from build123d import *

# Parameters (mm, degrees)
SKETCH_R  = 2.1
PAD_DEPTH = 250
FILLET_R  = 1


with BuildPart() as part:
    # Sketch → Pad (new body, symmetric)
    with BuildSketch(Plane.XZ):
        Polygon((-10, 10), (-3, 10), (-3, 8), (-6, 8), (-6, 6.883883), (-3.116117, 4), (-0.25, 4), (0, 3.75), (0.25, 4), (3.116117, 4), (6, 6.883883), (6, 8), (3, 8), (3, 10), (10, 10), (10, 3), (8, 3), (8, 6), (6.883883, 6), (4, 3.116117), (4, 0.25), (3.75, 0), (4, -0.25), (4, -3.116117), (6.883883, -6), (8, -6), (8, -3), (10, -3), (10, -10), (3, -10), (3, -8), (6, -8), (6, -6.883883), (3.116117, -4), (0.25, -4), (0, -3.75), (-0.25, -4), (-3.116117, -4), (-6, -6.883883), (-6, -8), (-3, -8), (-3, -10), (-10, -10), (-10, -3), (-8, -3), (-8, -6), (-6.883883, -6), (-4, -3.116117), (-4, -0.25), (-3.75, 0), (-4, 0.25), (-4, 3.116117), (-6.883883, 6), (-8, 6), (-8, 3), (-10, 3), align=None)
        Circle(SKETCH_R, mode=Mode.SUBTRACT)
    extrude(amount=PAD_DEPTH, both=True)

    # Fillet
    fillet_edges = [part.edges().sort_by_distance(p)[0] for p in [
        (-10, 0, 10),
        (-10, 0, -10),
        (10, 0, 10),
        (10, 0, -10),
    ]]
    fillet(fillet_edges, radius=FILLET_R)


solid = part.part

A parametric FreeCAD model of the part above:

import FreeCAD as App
import Part
import Sketcher


def edges_at(feature, points):
    """Names of the edges that pass closest to the given points."""
    edges = feature.Shape.Edges
    near = lambda p: min(range(len(edges)), key=lambda i: edges[i].distToShape(Part.Vertex(*p))[0])
    return sorted({f"Edge{near(p) + 1}" for p in points})

doc = App.newDocument("Part")
body = doc.addObject("PartDesign::Body", "Body")

sketch1 = doc.addObject("Sketcher::SketchObject", "Sketch")
body.addObject(sketch1)
sketch1.AttachmentSupport = (doc.XZ_Plane, [""])
sketch1.MapMode = "FlatFace"
sketch1.addGeometry([
    Part.LineSegment(App.Vector(-3, 10, 0), App.Vector(-10, 10, 0)),
    Part.LineSegment(App.Vector(-10, 10, 0), App.Vector(-10, 3, 0)),
    Part.LineSegment(App.Vector(-10, 3, 0), App.Vector(-8, 3, 0)),
    Part.LineSegment(App.Vector(-8, 3, 0), App.Vector(-8, 6, 0)),
    Part.LineSegment(App.Vector(-8, 6, 0), App.Vector(-6.883883, 6, 0)),
    Part.LineSegment(App.Vector(-6.883883, 6, 0), App.Vector(-4, 3.116117, 0)),
    Part.LineSegment(App.Vector(-4, 3.116117, 0), App.Vector(-4, 0.25, 0)),
    Part.LineSegment(App.Vector(-4, 0.25, 0), App.Vector(-3.75, 0, 0)),
    Part.LineSegment(App.Vector(-3.75, 0, 0), App.Vector(-4, -0.25, 0)),
    Part.LineSegment(App.Vector(-4, -0.25, 0), App.Vector(-4, -3.116117, 0)),
    Part.LineSegment(App.Vector(-4, -3.116117, 0), App.Vector(-6.883883, -6, 0)),
    Part.LineSegment(App.Vector(-6.883883, -6, 0), App.Vector(-8, -6, 0)),
    Part.LineSegment(App.Vector(-8, -6, 0), App.Vector(-8, -3, 0)),
    Part.LineSegment(App.Vector(-8, -3, 0), App.Vector(-10, -3, 0)),
    Part.LineSegment(App.Vector(-10, -3, 0), App.Vector(-10, -10, 0)),
    Part.LineSegment(App.Vector(-10, -10, 0), App.Vector(-3, -10, 0)),
    Part.LineSegment(App.Vector(-3, -10, 0), App.Vector(-3, -8, 0)),
    Part.LineSegment(App.Vector(-3, -8, 0), App.Vector(-6, -8, 0)),
    Part.LineSegment(App.Vector(-6, -8, 0), App.Vector(-6, -6.883883, 0)),
    Part.LineSegment(App.Vector(-6, -6.883883, 0), App.Vector(-3.116117, -4, 0)),
    Part.LineSegment(App.Vector(-3.116117, -4, 0), App.Vector(-0.25, -4, 0)),
    Part.LineSegment(App.Vector(-0.25, -4, 0), App.Vector(0, -3.75, 0)),
    Part.LineSegment(App.Vector(0, -3.75, 0), App.Vector(0.25, -4, 0)),
    Part.LineSegment(App.Vector(0.25, -4, 0), App.Vector(3.116117, -4, 0)),
    Part.LineSegment(App.Vector(3.116117, -4, 0), App.Vector(6, -6.883883, 0)),
    Part.LineSegment(App.Vector(6, -6.883883, 0), App.Vector(6, -8, 0)),
    Part.LineSegment(App.Vector(6, -8, 0), App.Vector(3, -8, 0)),
    Part.LineSegment(App.Vector(3, -8, 0), App.Vector(3, -10, 0)),
    Part.LineSegment(App.Vector(3, -10, 0), App.Vector(10, -10, 0)),
    Part.LineSegment(App.Vector(10, -10, 0), App.Vector(10, -3, 0)),
    Part.LineSegment(App.Vector(10, -3, 0), App.Vector(8, -3, 0)),
    Part.LineSegment(App.Vector(8, -3, 0), App.Vector(8, -6, 0)),
    Part.LineSegment(App.Vector(8, -6, 0), App.Vector(6.883883, -6, 0)),
    Part.LineSegment(App.Vector(6.883883, -6, 0), App.Vector(4, -3.116117, 0)),
    Part.LineSegment(App.Vector(4, -3.116117, 0), App.Vector(4, -0.25, 0)),
    Part.LineSegment(App.Vector(4, -0.25, 0), App.Vector(3.75, 0, 0)),
    Part.LineSegment(App.Vector(3.75, 0, 0), App.Vector(4, 0.25, 0)),
    Part.LineSegment(App.Vector(4, 0.25, 0), App.Vector(4, 3.116117, 0)),
    Part.LineSegment(App.Vector(4, 3.116117, 0), App.Vector(6.883883, 6, 0)),
    Part.LineSegment(App.Vector(6.883883, 6, 0), App.Vector(8, 6, 0)),
    Part.LineSegment(App.Vector(8, 6, 0), App.Vector(8, 3, 0)),
    Part.LineSegment(App.Vector(8, 3, 0), App.Vector(10, 3, 0)),
    Part.LineSegment(App.Vector(10, 3, 0), App.Vector(10, 10, 0)),
    Part.LineSegment(App.Vector(10, 10, 0), App.Vector(3, 10, 0)),
    Part.LineSegment(App.Vector(3, 10, 0), App.Vector(3, 8, 0)),
    Part.LineSegment(App.Vector(3, 8, 0), App.Vector(6, 8, 0)),
    Part.LineSegment(App.Vector(6, 8, 0), App.Vector(6, 6.883883, 0)),
    Part.LineSegment(App.Vector(6, 6.883883, 0), App.Vector(3.116117, 4, 0)),
    Part.LineSegment(App.Vector(3.116117, 4, 0), App.Vector(0.25, 4, 0)),
    Part.LineSegment(App.Vector(0.25, 4, 0), App.Vector(0, 3.75, 0)),
    Part.LineSegment(App.Vector(0, 3.75, 0), App.Vector(-0.25, 4, 0)),
    Part.LineSegment(App.Vector(-0.25, 4, 0), App.Vector(-3.116117, 4, 0)),
    Part.LineSegment(App.Vector(-3.116117, 4, 0), App.Vector(-6, 6.883883, 0)),
    Part.LineSegment(App.Vector(-6, 6.883883, 0), App.Vector(-6, 8, 0)),
    Part.LineSegment(App.Vector(-6, 8, 0), App.Vector(-3, 8, 0)),
    Part.LineSegment(App.Vector(-3, 8, 0), App.Vector(-3, 10, 0)),
    Part.Circle(App.Vector(0, 0, 0), App.Vector(0, 0, 1), 2.1),
], False)
sketch1.addConstraint([
    Sketcher.Constraint("Coincident", 0, 2, 1, 1),
    Sketcher.Constraint("Coincident", 1, 2, 2, 1),
    Sketcher.Constraint("Coincident", 2, 2, 3, 1),
    Sketcher.Constraint("Coincident", 3, 2, 4, 1),
    Sketcher.Constraint("Coincident", 4, 2, 5, 1),
    Sketcher.Constraint("Coincident", 5, 2, 6, 1),
    Sketcher.Constraint("Coincident", 6, 2, 7, 1),
    Sketcher.Constraint("Coincident", 7, 2, 8, 1),
    Sketcher.Constraint("Coincident", 8, 2, 9, 1),
    Sketcher.Constraint("Coincident", 9, 2, 10, 1),
    Sketcher.Constraint("Coincident", 10, 2, 11, 1),
    Sketcher.Constraint("Coincident", 11, 2, 12, 1),
    Sketcher.Constraint("Coincident", 12, 2, 13, 1),
    Sketcher.Constraint("Coincident", 13, 2, 14, 1),
    Sketcher.Constraint("Coincident", 14, 2, 15, 1),
    Sketcher.Constraint("Coincident", 15, 2, 16, 1),
    Sketcher.Constraint("Coincident", 16, 2, 17, 1),
    Sketcher.Constraint("Coincident", 17, 2, 18, 1),
    Sketcher.Constraint("Coincident", 18, 2, 19, 1),
    Sketcher.Constraint("Coincident", 19, 2, 20, 1),
    Sketcher.Constraint("Coincident", 20, 2, 21, 1),
    Sketcher.Constraint("Coincident", 21, 2, 22, 1),
    Sketcher.Constraint("Coincident", 22, 2, 23, 1),
    Sketcher.Constraint("Coincident", 23, 2, 24, 1),
    Sketcher.Constraint("Coincident", 24, 2, 25, 1),
    Sketcher.Constraint("Coincident", 25, 2, 26, 1),
    Sketcher.Constraint("Coincident", 26, 2, 27, 1),
    Sketcher.Constraint("Coincident", 27, 2, 28, 1),
    Sketcher.Constraint("Coincident", 28, 2, 29, 1),
    Sketcher.Constraint("Coincident", 29, 2, 30, 1),
    Sketcher.Constraint("Coincident", 30, 2, 31, 1),
    Sketcher.Constraint("Coincident", 31, 2, 32, 1),
    Sketcher.Constraint("Coincident", 32, 2, 33, 1),
    Sketcher.Constraint("Coincident", 33, 2, 34, 1),
    Sketcher.Constraint("Coincident", 34, 2, 35, 1),
    Sketcher.Constraint("Coincident", 35, 2, 36, 1),
    Sketcher.Constraint("Coincident", 36, 2, 37, 1),
    Sketcher.Constraint("Coincident", 37, 2, 38, 1),
    Sketcher.Constraint("Coincident", 38, 2, 39, 1),
    Sketcher.Constraint("Coincident", 39, 2, 40, 1),
    Sketcher.Constraint("Coincident", 40, 2, 41, 1),
    Sketcher.Constraint("Coincident", 41, 2, 42, 1),
    Sketcher.Constraint("Coincident", 42, 2, 43, 1),
    Sketcher.Constraint("Coincident", 43, 2, 44, 1),
    Sketcher.Constraint("Coincident", 44, 2, 45, 1),
    Sketcher.Constraint("Coincident", 45, 2, 46, 1),
    Sketcher.Constraint("Coincident", 46, 2, 47, 1),
    Sketcher.Constraint("Coincident", 47, 2, 48, 1),
    Sketcher.Constraint("Coincident", 48, 2, 49, 1),
    Sketcher.Constraint("Coincident", 49, 2, 50, 1),
    Sketcher.Constraint("Coincident", 50, 2, 51, 1),
    Sketcher.Constraint("Coincident", 51, 2, 52, 1),
    Sketcher.Constraint("Coincident", 52, 2, 53, 1),
    Sketcher.Constraint("Coincident", 53, 2, 54, 1),
    Sketcher.Constraint("Coincident", 54, 2, 55, 1),
    Sketcher.Constraint("Coincident", 55, 2, 0, 1),
    Sketcher.Constraint("Horizontal", 0),
    Sketcher.Constraint("Vertical", 1),
    Sketcher.Constraint("Horizontal", 2),
    Sketcher.Constraint("Vertical", 3),
    Sketcher.Constraint("Horizontal", 4),
    Sketcher.Constraint("Vertical", 6),
    Sketcher.Constraint("Vertical", 9),
    Sketcher.Constraint("Horizontal", 11),
    Sketcher.Constraint("Vertical", 12),
    Sketcher.Constraint("Horizontal", 13),
    Sketcher.Constraint("Vertical", 14),
    Sketcher.Constraint("Horizontal", 15),
    Sketcher.Constraint("Vertical", 16),
    Sketcher.Constraint("Horizontal", 17),
    Sketcher.Constraint("Vertical", 18),
    Sketcher.Constraint("Horizontal", 20),
    Sketcher.Constraint("Horizontal", 23),
    Sketcher.Constraint("Vertical", 25),
    Sketcher.Constraint("Horizontal", 26),
    Sketcher.Constraint("Vertical", 27),
    Sketcher.Constraint("Horizontal", 28),
    Sketcher.Constraint("Vertical", 29),
    Sketcher.Constraint("Horizontal", 30),
    Sketcher.Constraint("Vertical", 31),
    Sketcher.Constraint("Horizontal", 32),
    Sketcher.Constraint("Vertical", 34),
    Sketcher.Constraint("Vertical", 37),
    Sketcher.Constraint("Horizontal", 39),
    Sketcher.Constraint("Vertical", 40),
    Sketcher.Constraint("Horizontal", 41),
    Sketcher.Constraint("Vertical", 42),
    Sketcher.Constraint("Horizontal", 43),
    Sketcher.Constraint("Vertical", 44),
    Sketcher.Constraint("Horizontal", 45),
    Sketcher.Constraint("Vertical", 46),
    Sketcher.Constraint("Horizontal", 48),
    Sketcher.Constraint("Horizontal", 51),
    Sketcher.Constraint("Vertical", 53),
    Sketcher.Constraint("Horizontal", 54),
    Sketcher.Constraint("Vertical", 55),
    Sketcher.Constraint("Coincident", 56, 3, -1, 1),
    Sketcher.Constraint("Symmetric", 0, 2, 28, 2, -1, 1),
    Sketcher.Constraint("Symmetric", 2, 2, 30, 2, -1, 1),
    Sketcher.Constraint("Symmetric", 4, 2, 32, 2, -1, 1),
    Sketcher.Constraint("Symmetric", 5, 2, 33, 2, -1, 1),
    Sketcher.Constraint("Symmetric", 7, 2, 35, 2, -1, 1),
    Sketcher.Constraint("Symmetric", 8, 2, 36, 2, -1, 1),
    Sketcher.Constraint("Symmetric", 10, 2, 38, 2, -1, 1),
    Sketcher.Constraint("Symmetric", 12, 2, 40, 2, -1, 1),
    Sketcher.Constraint("Symmetric", 14, 2, 42, 2, -1, 1),
    Sketcher.Constraint("Symmetric", 16, 2, 44, 2, -1, 1),
    Sketcher.Constraint("Symmetric", 18, 2, 46, 2, -1, 1),
    Sketcher.Constraint("Symmetric", 19, 2, 47, 2, -1, 1),
    Sketcher.Constraint("Symmetric", 21, 2, 49, 2, -1, 1),
    Sketcher.Constraint("Symmetric", 22, 2, 50, 2, -1, 1),
    Sketcher.Constraint("Symmetric", 24, 2, 52, 2, -1, 1),
    Sketcher.Constraint("Symmetric", 26, 2, 54, 2, -1, 1),
    Sketcher.Constraint("Symmetric", 20, 2, 22, 2, -2),
    Sketcher.Constraint("Symmetric", 18, 2, 24, 2, -2),
    Sketcher.Constraint("Symmetric", 16, 2, 26, 2, -2),
    Sketcher.Constraint("Symmetric", 14, 2, 28, 2, -2),
    Sketcher.Constraint("Symmetric", 12, 2, 30, 2, -2),
    Sketcher.Constraint("Symmetric", 10, 2, 32, 2, -2),
    Sketcher.Constraint("Symmetric", 9, 2, 33, 2, -2),
    Sketcher.Constraint("PointOnObject", 7, 2, -1),
    Sketcher.Constraint("PointOnObject", 21, 2, -2),
    Sketcher.Constraint("Parallel", 5, 7),
    Sketcher.Constraint("Perpendicular", 7, 8),
    Sketcher.Constraint("Parallel", 8, 10),
    Sketcher.Constraint("Parallel", 10, 19),
    Sketcher.Constraint("Parallel", 19, 21),
    Sketcher.Constraint("Parallel", 22, 24),
    Sketcher.Constraint("Parallel", 33, 35),
    Sketcher.Constraint("Parallel", 36, 38),
    Sketcher.Constraint("Parallel", 47, 49),
    Sketcher.Constraint("Parallel", 50, 52),
    Sketcher.Constraint("Equal", 43, 1),
    Sketcher.Constraint("Equal", 54, 3),
    Sketcher.Constraint("Equal", 51, 6),
    Sketcher.Constraint("Equal", 41, 16),
    Sketcher.Constraint("Equal", 39, 18),
    Sketcher.Constraint("Equal", 10, 19),
    Sketcher.Constraint("Equal", 8, 21),
    Sketcher.Constraint("Diameter", 56, 4.2),
    Sketcher.Constraint("DistanceX", 0, 2, 0, 1, 7.0),
    Sketcher.Constraint("DistanceX", 2, 1, 2, 2, 2.0),
    Sketcher.Constraint("DistanceX", 17, 2, 17, 1, 3.0),
    Sketcher.Constraint("DistanceX", 0, 2, -1, 1, 10.0),
    Sketcher.Constraint("DistanceX", 5, 2, -1, 1, 4.0),
    Sketcher.Constraint("DistanceY", 8, 2, 6, 2, 0.5),
    Sketcher.Constraint("DistanceX", 4, 1, 4, 2, 1.116117),
])
pad1 = doc.addObject("PartDesign::Pad", "Pad")
body.addObject(pad1)
pad1.Profile = sketch1
pad1.Length = 500
pad1.Midplane = True
doc.recompute()

fillet = doc.addObject("PartDesign::Fillet", "Fillet")
body.addObject(fillet)
fillet.Base = (pad1, edges_at(pad1, [
    (-10, 0, 10),
    (-10, 0, -10),
    (10, 0, 10),
    (10, 0, -10),
]))
fillet.Radius = 1

doc.recompute()
